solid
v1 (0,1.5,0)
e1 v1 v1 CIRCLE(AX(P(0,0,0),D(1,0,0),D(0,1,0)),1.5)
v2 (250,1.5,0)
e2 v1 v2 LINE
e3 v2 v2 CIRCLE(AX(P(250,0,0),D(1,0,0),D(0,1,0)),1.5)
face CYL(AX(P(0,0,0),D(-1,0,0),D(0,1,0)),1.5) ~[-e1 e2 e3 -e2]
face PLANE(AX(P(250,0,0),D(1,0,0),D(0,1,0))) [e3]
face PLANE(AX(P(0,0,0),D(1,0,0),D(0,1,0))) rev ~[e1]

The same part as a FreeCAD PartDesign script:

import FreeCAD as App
import Part
import Sketcher
Q = App.Units.Quantity

doc = App.newDocument("Part")
body = doc.addObject("PartDesign::Body", "Body")

# Sketch on YZ plane
sketch1 = body.newObject("Sketcher::SketchObject", "Sketch")
sketch1.AttachmentSupport = (doc.getObject("YZ_Plane"), [""])
sketch1.MapMode = "FlatFace"
sketch1.addGeometry(Part.Circle(App.Vector(0, 0, 0), App.Vector(0, 0, 1), 1.5), False)
sketch1.addConstraint(Sketcher.Constraint("Coincident", 0, 3, -1, 1))
sketch1.addConstraint(Sketcher.Constraint("Diameter", 0, Q("3 mm")))
pad1 = body.newObject("PartDesign::Pad", "Pad")
pad1.Profile = sketch1
pad1.Length = 250

doc.recompute()
